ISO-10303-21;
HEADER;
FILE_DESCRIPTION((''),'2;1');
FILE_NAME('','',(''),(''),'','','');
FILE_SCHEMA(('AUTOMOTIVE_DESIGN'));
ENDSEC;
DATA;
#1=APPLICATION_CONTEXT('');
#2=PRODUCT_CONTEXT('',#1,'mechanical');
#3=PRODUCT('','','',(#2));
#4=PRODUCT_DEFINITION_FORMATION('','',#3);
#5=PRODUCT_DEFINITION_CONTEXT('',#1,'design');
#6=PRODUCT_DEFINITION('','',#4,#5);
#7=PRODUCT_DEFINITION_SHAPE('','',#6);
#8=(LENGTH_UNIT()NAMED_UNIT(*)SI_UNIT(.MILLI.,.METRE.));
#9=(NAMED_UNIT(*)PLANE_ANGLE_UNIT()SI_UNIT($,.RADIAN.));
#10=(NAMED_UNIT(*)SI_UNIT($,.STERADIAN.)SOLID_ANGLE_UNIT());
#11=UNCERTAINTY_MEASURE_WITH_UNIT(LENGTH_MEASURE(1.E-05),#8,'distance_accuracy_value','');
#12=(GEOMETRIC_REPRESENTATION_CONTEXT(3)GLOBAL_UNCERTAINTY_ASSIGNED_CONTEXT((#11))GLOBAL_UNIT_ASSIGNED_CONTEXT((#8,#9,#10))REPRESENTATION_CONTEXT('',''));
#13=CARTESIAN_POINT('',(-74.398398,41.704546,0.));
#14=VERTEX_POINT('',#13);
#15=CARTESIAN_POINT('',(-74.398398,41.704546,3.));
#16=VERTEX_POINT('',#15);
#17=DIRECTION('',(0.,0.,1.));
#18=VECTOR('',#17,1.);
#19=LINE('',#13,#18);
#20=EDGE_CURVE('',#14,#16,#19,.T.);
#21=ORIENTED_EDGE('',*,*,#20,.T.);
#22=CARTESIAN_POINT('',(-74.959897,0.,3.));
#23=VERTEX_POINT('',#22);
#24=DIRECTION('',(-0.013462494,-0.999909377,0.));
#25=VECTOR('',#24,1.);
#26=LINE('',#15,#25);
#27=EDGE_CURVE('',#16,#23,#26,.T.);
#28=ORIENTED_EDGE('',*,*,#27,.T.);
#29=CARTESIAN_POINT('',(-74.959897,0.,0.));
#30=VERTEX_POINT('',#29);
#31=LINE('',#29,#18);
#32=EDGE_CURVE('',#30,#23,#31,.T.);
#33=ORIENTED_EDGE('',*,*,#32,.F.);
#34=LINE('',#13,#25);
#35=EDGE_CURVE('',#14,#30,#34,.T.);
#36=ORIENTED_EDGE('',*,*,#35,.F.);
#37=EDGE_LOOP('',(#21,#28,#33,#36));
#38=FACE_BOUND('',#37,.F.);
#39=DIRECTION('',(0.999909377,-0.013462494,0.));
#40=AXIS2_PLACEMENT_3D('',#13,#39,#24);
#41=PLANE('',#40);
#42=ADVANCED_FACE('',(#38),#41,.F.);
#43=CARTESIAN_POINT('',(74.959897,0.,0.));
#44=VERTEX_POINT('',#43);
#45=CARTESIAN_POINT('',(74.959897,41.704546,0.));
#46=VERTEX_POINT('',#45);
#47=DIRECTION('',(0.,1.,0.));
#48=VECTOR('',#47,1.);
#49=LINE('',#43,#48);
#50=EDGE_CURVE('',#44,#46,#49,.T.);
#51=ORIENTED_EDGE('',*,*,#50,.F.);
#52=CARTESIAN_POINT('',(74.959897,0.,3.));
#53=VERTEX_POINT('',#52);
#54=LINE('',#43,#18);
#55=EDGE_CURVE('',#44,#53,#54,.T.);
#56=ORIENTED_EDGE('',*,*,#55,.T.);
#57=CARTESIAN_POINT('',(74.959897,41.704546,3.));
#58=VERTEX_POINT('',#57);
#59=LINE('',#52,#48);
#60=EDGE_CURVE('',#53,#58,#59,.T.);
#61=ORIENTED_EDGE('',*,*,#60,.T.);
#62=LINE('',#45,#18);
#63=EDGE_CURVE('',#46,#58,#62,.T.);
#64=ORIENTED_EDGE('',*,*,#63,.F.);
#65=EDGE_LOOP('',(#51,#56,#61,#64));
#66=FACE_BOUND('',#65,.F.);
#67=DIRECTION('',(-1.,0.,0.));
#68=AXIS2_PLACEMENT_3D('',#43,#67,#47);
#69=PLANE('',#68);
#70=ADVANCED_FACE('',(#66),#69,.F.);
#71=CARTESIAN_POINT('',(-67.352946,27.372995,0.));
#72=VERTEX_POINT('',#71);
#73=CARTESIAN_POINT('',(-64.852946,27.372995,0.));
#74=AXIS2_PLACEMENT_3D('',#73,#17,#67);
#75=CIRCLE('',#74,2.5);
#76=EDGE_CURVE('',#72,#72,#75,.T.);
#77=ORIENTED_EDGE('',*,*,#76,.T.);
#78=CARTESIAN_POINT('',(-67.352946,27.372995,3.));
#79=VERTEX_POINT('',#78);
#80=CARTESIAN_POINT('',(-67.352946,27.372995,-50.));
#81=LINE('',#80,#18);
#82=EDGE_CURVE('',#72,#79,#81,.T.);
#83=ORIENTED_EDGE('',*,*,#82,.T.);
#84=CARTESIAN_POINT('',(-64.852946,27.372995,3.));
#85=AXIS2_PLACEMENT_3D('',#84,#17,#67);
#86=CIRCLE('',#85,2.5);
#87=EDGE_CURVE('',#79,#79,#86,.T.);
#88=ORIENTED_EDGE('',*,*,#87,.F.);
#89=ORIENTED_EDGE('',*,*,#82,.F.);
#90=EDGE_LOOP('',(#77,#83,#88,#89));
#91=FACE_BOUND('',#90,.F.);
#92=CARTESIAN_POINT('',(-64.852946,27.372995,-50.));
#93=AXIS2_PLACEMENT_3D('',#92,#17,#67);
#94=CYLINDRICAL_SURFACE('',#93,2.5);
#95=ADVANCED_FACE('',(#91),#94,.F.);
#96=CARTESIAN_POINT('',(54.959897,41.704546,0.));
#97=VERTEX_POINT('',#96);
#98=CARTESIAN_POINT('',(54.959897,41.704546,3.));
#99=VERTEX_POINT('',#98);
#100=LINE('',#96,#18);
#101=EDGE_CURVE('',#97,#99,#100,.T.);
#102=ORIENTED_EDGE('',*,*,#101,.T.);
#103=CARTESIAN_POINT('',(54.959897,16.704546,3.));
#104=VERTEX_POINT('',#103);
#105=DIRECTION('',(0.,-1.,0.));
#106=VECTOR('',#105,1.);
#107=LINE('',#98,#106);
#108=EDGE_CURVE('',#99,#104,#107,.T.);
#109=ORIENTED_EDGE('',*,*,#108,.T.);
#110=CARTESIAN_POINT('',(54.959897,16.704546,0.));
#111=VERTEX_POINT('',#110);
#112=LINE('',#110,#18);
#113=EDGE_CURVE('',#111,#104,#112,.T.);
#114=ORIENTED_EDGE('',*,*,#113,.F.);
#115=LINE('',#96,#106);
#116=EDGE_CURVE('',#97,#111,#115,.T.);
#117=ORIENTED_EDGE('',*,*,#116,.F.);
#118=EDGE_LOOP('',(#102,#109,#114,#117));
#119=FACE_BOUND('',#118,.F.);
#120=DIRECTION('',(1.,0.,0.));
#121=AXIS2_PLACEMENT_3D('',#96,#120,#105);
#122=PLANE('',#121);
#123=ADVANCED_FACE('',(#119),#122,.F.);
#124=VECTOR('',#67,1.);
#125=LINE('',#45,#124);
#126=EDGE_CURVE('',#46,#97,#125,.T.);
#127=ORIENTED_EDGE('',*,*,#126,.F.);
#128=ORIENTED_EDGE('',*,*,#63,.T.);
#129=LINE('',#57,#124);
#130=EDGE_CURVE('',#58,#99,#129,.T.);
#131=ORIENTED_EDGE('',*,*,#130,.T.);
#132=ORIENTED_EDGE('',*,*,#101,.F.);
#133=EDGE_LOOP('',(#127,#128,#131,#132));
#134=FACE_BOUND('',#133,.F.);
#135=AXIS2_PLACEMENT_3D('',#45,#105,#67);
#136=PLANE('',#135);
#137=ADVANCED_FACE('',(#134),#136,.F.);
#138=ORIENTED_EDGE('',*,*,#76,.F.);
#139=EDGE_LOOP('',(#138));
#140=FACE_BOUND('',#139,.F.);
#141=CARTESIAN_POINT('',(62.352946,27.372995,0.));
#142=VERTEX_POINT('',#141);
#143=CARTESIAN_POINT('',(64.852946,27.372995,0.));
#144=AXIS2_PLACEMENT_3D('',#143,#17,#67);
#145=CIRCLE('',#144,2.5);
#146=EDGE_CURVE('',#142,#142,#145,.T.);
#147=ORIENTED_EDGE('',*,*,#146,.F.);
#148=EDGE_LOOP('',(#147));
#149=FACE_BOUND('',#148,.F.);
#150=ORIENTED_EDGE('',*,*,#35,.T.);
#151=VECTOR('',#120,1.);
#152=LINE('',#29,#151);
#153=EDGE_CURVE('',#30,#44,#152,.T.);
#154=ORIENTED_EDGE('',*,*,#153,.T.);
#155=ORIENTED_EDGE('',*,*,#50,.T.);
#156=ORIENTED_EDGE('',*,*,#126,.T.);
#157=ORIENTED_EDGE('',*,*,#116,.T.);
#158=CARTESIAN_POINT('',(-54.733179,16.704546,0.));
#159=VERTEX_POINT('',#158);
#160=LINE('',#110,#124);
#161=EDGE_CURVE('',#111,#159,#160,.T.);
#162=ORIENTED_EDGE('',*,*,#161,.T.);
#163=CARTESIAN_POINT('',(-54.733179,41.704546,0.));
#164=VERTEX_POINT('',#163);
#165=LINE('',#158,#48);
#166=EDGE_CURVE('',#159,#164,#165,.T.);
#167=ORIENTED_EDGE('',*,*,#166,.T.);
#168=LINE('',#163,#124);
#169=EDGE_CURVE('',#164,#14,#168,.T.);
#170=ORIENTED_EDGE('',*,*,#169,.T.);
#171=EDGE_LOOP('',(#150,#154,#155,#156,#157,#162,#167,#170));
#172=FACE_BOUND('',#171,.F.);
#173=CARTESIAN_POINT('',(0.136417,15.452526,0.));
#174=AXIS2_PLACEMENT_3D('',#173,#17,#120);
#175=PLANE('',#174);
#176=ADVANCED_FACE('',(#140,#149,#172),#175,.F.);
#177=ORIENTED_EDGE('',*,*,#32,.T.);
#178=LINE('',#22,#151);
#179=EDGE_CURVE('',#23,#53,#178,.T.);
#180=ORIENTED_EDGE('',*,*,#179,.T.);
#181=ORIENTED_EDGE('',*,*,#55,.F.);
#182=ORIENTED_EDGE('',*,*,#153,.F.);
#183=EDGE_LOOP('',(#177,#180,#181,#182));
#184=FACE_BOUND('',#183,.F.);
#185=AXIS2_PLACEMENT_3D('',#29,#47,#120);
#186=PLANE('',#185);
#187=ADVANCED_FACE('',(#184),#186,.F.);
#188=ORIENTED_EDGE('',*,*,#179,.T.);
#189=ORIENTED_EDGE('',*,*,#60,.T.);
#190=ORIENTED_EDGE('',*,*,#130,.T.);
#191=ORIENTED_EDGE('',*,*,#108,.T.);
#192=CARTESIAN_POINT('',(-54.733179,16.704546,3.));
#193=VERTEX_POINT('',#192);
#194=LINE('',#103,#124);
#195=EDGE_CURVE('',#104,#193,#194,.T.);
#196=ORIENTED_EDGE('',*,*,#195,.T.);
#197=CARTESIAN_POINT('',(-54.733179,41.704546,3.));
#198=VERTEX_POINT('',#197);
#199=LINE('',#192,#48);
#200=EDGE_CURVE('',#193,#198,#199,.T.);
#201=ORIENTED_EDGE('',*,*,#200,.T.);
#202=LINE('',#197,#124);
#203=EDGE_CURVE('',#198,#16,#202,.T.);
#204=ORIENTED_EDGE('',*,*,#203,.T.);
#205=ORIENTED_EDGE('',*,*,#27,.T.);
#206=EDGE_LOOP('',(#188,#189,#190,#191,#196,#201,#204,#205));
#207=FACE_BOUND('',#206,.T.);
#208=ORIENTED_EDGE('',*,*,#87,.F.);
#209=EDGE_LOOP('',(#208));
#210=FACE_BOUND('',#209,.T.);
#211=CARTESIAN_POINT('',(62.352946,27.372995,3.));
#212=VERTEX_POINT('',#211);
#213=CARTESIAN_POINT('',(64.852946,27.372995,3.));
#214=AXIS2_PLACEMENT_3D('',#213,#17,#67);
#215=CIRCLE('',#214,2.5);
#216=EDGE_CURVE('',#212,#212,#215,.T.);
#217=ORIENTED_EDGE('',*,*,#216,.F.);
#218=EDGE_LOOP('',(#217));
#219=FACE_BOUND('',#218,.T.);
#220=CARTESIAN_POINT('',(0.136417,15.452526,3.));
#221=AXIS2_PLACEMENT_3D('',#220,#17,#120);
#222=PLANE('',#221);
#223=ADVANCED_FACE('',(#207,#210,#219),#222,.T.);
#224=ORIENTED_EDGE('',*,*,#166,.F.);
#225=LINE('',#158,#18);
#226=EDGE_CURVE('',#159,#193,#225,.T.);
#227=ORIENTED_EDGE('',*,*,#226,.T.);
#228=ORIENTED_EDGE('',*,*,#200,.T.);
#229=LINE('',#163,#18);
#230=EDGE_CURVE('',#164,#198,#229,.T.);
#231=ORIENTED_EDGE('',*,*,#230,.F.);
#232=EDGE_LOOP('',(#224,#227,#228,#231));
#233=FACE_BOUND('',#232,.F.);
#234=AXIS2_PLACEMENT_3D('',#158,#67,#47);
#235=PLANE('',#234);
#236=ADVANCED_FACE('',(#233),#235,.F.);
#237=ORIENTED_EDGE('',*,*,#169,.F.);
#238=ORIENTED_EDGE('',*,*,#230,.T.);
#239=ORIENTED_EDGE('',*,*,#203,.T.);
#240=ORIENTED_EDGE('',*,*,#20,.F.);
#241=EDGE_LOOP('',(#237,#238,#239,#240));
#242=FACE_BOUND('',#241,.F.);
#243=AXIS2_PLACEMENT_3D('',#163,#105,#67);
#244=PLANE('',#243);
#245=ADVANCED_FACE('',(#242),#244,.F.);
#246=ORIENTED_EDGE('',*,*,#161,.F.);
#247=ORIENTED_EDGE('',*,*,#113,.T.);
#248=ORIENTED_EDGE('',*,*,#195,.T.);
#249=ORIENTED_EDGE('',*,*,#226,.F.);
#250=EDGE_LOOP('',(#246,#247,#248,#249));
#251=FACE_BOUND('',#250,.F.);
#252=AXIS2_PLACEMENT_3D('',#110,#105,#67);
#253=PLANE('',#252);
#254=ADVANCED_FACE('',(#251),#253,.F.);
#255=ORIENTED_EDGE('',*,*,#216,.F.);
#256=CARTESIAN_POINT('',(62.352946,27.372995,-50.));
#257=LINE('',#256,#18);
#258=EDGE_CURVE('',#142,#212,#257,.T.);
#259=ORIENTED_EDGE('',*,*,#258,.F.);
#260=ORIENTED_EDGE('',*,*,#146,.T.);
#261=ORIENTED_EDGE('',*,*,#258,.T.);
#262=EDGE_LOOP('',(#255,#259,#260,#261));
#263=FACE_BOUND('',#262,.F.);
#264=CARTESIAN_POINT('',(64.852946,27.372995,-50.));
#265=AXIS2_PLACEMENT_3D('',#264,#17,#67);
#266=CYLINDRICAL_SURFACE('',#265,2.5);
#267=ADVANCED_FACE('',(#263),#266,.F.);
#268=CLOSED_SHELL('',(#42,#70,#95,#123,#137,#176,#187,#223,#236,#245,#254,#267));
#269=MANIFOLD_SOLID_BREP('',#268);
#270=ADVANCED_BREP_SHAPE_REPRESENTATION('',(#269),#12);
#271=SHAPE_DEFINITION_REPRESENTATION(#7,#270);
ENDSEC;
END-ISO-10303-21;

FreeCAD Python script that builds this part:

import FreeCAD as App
import Part
import Sketcher
from FreeCAD import Vector


def add_polygon(sketch, points):
    """Adds a closed chain of lines whose ends are joined by coincident constraints."""
    first, n = sketch.GeometryCount, len(points)
    for a, b in zip(points, points[1:] + points[:1]):
        sketch.addGeometry(Part.LineSegment(App.Vector(*a, 0), App.Vector(*b, 0)), False)
    for i in range(n):
        sketch.addConstraint(Sketcher.Constraint("Coincident", first + i, 2, first + (i + 1) % n, 1))

doc = App.newDocument("Part")
body = doc.addObject("PartDesign::Body", "Body")

# Sketch on XY plane
sketch1 = body.newObject("Sketcher::SketchObject", "Sketch")
sketch1.AttachmentSupport = (doc.getObject("XY_Plane"), [""])
sketch1.MapMode = "FlatFace"
add_polygon(sketch1, [(-74, 42), (-75, 0), (75, 0), (75, 42), (55, 42), (55, 17), (-55, 17), (-55, 42)])  # lines 0-7
sketch1.addConstraint([
    Sketcher.Constraint("Horizontal", 1),
    Sketcher.Constraint("Vertical", 2),
    Sketcher.Constraint("Horizontal", 3),
    Sketcher.Constraint("Vertical", 4),
    Sketcher.Constraint("Horizontal", 5),
    Sketcher.Constraint("Vertical", 6),
    Sketcher.Constraint("Horizontal", 7),
    Sketcher.Constraint("Symmetric", 0, 2, 1, 2, -1, 1),
    Sketcher.Constraint("Horizontal", 3, 2, 6, 2),
    Sketcher.Constraint("DistanceX", 3, 2, 3, 1, 20.0),
    Sketcher.Constraint("DistanceY", 4, 2, 4, 1, 25.0),
    Sketcher.Constraint("DistanceX", 7, 2, 7, 1, 19.66522),
    Sketcher.Constraint("DistanceX", 7, 2, -1, 1, 74.398398),
    Sketcher.Constraint("DistanceX", 0, 2, 7, 2, 0.561498),
    Sketcher.Constraint("DistanceY", 2, 1, 2, 2, 41.704546),
])
pad1 = body.newObject("PartDesign::Pad", "Pad")
pad1.Profile = sketch1
pad1.Length = 3

# Sketch on XY plane
sketch2 = body.newObject("Sketcher::SketchObject", "Sketch001")
sketch2.AttachmentSupport = (doc.getObject("XY_Plane"), [""])
sketch2.MapMode = "FlatFace"
sketch2.addGeometry([
    Part.Circle(Vector(-64.9, 27.4, 0), Vector(0, 0, 1), 2.5),
    Part.Circle(Vector(64.9, 27.4, 0), Vector(0, 0, 1), 2.5),
], False)
sketch2.addConstraint([
    Sketcher.Constraint("Equal", 0, 1),
    Sketcher.Constraint("Symmetric", 0, 3, 1, 3, -2),
    Sketcher.Constraint("Diameter", 0, 5.0),
    Sketcher.Constraint("DistanceX", 0, 3, 1, 3, 129.705891),
    Sketcher.Constraint("DistanceY", -1, 1, 0, 3, 27.372995),
])
doc.recompute()
hole = body.newObject("PartDesign::Hole", "Hole")
hole.Profile = sketch2
hole.ThreadType = "None"
hole.Diameter = 5
hole.DepthType = "Dimension"
hole.Depth = 50
hole.DrillPoint = "Angled"
hole.DrillPointAngle = 118
hole.Reversed = True

doc.recompute()
